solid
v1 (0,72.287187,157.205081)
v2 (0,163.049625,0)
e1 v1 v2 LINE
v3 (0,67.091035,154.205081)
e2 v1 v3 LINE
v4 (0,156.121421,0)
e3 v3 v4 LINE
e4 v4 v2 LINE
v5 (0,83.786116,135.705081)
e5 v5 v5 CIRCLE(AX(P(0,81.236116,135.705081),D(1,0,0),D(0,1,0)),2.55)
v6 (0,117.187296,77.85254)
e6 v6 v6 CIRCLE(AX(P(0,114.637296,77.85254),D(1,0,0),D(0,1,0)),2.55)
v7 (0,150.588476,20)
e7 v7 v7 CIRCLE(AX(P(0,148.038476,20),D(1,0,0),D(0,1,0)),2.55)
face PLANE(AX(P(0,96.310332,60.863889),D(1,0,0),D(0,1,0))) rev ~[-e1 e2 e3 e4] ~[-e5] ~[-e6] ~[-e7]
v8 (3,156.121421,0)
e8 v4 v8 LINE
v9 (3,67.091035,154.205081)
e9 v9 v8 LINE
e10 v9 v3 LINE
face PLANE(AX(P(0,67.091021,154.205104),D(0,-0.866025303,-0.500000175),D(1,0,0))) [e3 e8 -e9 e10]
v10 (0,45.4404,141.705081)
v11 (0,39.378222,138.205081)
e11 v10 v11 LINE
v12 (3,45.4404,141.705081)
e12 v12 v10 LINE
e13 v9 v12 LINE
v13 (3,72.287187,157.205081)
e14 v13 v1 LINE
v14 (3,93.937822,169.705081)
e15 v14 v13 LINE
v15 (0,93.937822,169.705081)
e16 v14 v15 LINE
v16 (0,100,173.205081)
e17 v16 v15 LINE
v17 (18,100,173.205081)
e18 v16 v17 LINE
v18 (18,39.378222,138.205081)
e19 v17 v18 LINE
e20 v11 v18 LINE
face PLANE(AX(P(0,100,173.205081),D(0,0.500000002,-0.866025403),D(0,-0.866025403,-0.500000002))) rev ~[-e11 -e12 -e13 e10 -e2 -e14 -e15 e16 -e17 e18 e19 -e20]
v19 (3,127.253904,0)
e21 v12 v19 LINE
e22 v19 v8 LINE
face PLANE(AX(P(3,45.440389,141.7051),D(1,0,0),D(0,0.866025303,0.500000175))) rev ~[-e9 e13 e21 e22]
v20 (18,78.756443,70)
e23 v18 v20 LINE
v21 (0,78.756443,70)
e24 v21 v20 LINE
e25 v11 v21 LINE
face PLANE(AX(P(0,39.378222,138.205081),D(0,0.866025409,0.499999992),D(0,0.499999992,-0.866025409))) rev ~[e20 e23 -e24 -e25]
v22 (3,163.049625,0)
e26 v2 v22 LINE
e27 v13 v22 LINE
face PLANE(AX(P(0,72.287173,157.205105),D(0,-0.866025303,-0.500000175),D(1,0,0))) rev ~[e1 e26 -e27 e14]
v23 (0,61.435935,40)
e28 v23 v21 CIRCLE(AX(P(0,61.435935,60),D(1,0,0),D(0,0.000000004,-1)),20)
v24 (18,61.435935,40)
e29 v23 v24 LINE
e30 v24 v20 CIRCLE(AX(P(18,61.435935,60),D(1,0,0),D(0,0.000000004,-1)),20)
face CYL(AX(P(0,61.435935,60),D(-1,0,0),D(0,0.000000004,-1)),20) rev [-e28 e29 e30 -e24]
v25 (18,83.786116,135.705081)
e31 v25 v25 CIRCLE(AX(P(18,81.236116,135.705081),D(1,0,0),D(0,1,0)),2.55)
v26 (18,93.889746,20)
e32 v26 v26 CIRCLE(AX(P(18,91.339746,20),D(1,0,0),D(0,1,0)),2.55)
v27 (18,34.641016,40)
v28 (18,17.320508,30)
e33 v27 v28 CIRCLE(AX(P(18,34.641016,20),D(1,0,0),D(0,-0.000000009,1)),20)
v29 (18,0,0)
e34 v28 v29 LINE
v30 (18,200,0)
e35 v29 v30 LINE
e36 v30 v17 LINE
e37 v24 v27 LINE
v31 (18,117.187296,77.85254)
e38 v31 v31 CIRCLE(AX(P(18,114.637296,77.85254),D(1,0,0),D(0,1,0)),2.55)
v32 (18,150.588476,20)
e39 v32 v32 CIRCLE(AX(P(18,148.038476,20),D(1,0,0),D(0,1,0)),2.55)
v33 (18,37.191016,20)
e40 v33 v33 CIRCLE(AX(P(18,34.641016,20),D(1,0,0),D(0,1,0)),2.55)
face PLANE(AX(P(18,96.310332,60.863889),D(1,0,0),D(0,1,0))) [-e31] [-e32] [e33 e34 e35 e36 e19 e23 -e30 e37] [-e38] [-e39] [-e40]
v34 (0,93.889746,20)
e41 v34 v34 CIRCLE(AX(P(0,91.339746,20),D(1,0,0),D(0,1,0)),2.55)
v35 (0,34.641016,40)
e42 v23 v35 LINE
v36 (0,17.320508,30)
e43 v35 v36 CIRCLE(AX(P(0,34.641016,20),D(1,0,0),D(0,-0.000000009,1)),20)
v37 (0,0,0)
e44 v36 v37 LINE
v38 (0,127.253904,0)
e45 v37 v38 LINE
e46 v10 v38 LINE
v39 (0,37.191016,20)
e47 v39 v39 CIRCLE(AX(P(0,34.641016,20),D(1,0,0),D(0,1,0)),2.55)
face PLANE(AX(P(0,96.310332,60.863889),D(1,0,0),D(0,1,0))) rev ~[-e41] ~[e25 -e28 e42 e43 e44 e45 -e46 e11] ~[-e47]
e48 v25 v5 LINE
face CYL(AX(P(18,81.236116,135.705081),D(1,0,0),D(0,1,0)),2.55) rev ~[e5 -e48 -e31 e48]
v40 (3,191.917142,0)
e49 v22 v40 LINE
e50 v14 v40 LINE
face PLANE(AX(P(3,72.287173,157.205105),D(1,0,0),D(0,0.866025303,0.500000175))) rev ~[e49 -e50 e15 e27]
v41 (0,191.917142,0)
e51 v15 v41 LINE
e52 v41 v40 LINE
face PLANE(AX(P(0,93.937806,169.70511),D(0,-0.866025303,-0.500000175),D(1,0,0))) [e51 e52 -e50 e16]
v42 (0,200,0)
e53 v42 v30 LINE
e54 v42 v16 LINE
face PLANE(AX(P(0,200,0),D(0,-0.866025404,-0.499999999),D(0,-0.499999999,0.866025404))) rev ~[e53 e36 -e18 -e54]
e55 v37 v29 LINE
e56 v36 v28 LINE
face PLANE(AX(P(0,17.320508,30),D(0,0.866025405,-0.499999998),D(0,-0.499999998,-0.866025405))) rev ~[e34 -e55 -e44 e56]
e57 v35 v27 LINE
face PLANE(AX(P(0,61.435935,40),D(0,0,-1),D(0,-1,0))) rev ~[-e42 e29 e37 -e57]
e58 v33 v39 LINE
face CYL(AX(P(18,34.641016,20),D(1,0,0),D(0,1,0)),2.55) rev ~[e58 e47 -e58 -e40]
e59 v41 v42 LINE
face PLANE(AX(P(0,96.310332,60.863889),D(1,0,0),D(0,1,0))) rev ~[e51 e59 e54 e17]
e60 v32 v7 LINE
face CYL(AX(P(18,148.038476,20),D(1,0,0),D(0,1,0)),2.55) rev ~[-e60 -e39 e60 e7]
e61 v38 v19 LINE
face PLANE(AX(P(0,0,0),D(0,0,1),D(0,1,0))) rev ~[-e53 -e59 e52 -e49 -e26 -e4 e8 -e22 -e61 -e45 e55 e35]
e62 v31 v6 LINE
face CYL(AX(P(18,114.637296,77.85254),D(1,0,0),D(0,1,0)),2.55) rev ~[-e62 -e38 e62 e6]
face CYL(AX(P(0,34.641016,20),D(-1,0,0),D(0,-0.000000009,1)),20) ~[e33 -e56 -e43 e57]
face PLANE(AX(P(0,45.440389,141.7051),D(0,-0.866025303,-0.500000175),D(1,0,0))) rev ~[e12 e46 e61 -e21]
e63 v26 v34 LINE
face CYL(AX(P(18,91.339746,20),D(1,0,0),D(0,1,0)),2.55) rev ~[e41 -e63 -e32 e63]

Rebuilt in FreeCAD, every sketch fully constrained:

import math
import FreeCAD as App
import Part
import Sketcher
Q = App.Units.Quantity


def add_polygon(sketch, points):
    """Adds a closed chain of lines whose ends are joined by coincident constraints."""
    first, n = sketch.GeometryCount, len(points)
    for a, b in zip(points, points[1:] + points[:1]):
        sketch.addGeometry(Part.LineSegment(App.Vector(*a, 0), App.Vector(*b, 0)), False)
    for i in range(n):
        sketch.addConstraint(Sketcher.Constraint("Coincident", first + i, 2, first + (i + 1) % n, 1))

doc = App.newDocument("Part")
body = doc.addObject("PartDesign::Body", "Body")

# Sketch on YZ plane
sketch1 = doc.addObject("Sketcher::SketchObject", "Sketch")
body.addObject(sketch1)
sketch1.AttachmentSupport = (doc.YZ_Plane, [""])
sketch1.MapMode = "FlatFace"
sketch1.addGeometry([
    Part.LineSegment(App.Vector(0, 0, 0), App.Vector(200, 0, 0)),  # 0
    Part.LineSegment(App.Vector(200, 0, 0), App.Vector(100, 173, 0)),  # 1
    Part.LineSegment(App.Vector(100, 173, 0), App.Vector(39, 138, 0)),  # 2
    Part.LineSegment(App.Vector(39, 138, 0), App.Vector(79, 70, 0)),  # 3
    Part.ArcOfCircle(Part.Circle(App.Vector(61, 60, 0), App.Vector(0, 0, 1), 20), math.radians(-90), math.radians(30)),  # 4
    Part.LineSegment(App.Vector(61, 40, 0), App.Vector(35, 40, 0)),  # 5
    Part.ArcOfCircle(Part.Circle(App.Vector(35, 20, 0), App.Vector(0, 0, 1), 20), math.radians(90), math.radians(150)),  # 6
    Part.LineSegment(App.Vector(17, 30, 0), App.Vector(0, 0, 0)),  # 7
], False)
sketch1.addConstraint([
    Sketcher.Constraint("Coincident", 0, 2, 1, 1),
    Sketcher.Constraint("Coincident", 1, 2, 2, 1),
    Sketcher.Constraint("Coincident", 2, 2, 3, 1),
    Sketcher.Constraint("Tangent", 3, 2, 4, 2),
    Sketcher.Constraint("Tangent", 4, 1, 5, 1),
    Sketcher.Constraint("Tangent", 5, 2, 6, 1),
    Sketcher.Constraint("Tangent", 6, 2, 7, 1),
    Sketcher.Constraint("Coincident", 7, 2, 0, 1),
    Sketcher.Constraint("Horizontal", 0),
    Sketcher.Constraint("Horizontal", 5),
    Sketcher.Constraint("Coincident", 7, 2, -1, 1),
    Sketcher.Constraint("Equal", 4, 6),
    Sketcher.Constraint("Perpendicular", 1, 2),
    Sketcher.Constraint("Perpendicular", 2, 3),
    Sketcher.Constraint("Radius", 4, Q("20 mm")),
    Sketcher.Constraint("DistanceX", 0, 1, 0, 2, Q("200 mm")),
    Sketcher.Constraint("Angle", 1, Q("120 deg")),
    Sketcher.Constraint("Angle", 7, Q("-120 deg")),
    Sketcher.Constraint("Distance", 1, Q("200 mm")),
    Sketcher.Constraint("Distance", 2, Q("70 mm")),
    Sketcher.Constraint("DistanceY", -1, 1, 4, 3, Q("60 mm")),
])
pad1 = doc.addObject("PartDesign::Pad", "Pad")
body.addObject(pad1)
pad1.Profile = sketch1
pad1.Length = 18

# Sketch on YZ plane
sketch2 = doc.addObject("Sketcher::SketchObject", "Sketch001")
body.addObject(sketch2)
sketch2.AttachmentSupport = (doc.YZ_Plane, [""])
sketch2.MapMode = "FlatFace"
sketch2.AttachmentOffset = App.Placement(App.Vector(0, 0, 18), App.Rotation())
sketch2.addGeometry([
    Part.Circle(App.Vector(81.2, 135.7, 0), App.Vector(0, 0, 1), 2.5),  # 0
    Part.Circle(App.Vector(114.6, 77.9, 0), App.Vector(0, 0, 1), 2.5),  # 1
    Part.Circle(App.Vector(148, 20, 0), App.Vector(0, 0, 1), 2.5),  # 2
    Part.Circle(App.Vector(91.3, 20, 0), App.Vector(0, 0, 1), 2.5),  # 3
    Part.Circle(App.Vector(34.6, 20, 0), App.Vector(0, 0, 1), 2.5),  # 4
], False)
sketch2.addConstraint([
    Sketcher.Constraint("Equal", 0, 1),
    Sketcher.Constraint("Equal", 1, 2),
    Sketcher.Constraint("Equal", 2, 3),
    Sketcher.Constraint("Equal", 3, 4),
    Sketcher.Constraint("Horizontal", 2, 3, 3, 3),
    Sketcher.Constraint("Horizontal", 3, 3, 4, 3),
    Sketcher.Constraint("Diameter", 0, Q("5.1 mm")),
    Sketcher.Constraint("DistanceY", -1, 1, 2, 3, Q("20 mm")),
    Sketcher.Constraint("DistanceX", 4, 3, 0, 3, Q("46.5951 mm")),
    Sketcher.Constraint("DistanceY", -1, 1, 0, 3, Q("135.705081 mm")),
    Sketcher.Constraint("DistanceY", -1, 1, 1, 3, Q("77.85254 mm")),
    Sketcher.Constraint("DistanceX", 0, 3, 1, 3, Q("33.40118 mm")),
    Sketcher.Constraint("DistanceX", 1, 3, 2, 3, Q("33.40118 mm")),
    Sketcher.Constraint("DistanceX", 3, 3, 2, 3, Q("56.69873 mm")),
    Sketcher.Constraint("DistanceX", -1, 1, 0, 3, Q("81.236116 mm")),
])
pocket1 = doc.addObject("PartDesign::Pocket", "Pocket")
body.addObject(pocket1)
pocket1.Profile = sketch2
pocket1.Type = "ThroughAll"

# Sketch on an angled plane
sketch3 = doc.addObject("Sketcher::SketchObject", "Sketch002")
body.addObject(sketch3)
sketch3.Placement = App.Placement(App.Vector(0, -50, 86.60254), App.Rotation(App.Vector(1, 0, 0), App.Vector(0, 0.866025303, 0.500000175), App.Vector(0, -0.500000175, 0.866025303), "ZXY"))
add_polygon(sketch3, [(0, 135.2), (0, 110.2), (3, 110.2), (3, 135.2)])  # lines 0-3
add_polygon(sketch3, [(0, 166.2), (0, 141.2), (3, 141.2), (3, 166.2)])  # lines 4-7
sketch3.addConstraint([
    Sketcher.Constraint("Vertical", 0),
    Sketcher.Constraint("Horizontal", 1),
    Sketcher.Constraint("Vertical", 2),
    Sketcher.Constraint("Horizontal", 3),
    Sketcher.Constraint("Vertical", 4),
    Sketcher.Constraint("Horizontal", 5),
    Sketcher.Constraint("Vertical", 6),
    Sketcher.Constraint("Horizontal", 7),
    Sketcher.Constraint("PointOnObject", 0, 2, -2),
    Sketcher.Constraint("PointOnObject", 4, 2, -2),
    Sketcher.Constraint("Vertical", 2, 2, 5, 2),
    Sketcher.Constraint("Equal", 2, 4),
    Sketcher.Constraint("DistanceX", 1, 1, 1, 2, Q("3 mm")),
    Sketcher.Constraint("DistanceY", 0, 2, 0, 1, Q("25 mm")),
    Sketcher.Constraint("DistanceY", 3, 2, 4, 2, Q("6 mm")),
    Sketcher.Constraint("DistanceY", -1, 1, 0, 2, Q("110.205081 mm")),
])
pocket2 = doc.addObject("PartDesign::Pocket", "Pocket001")
body.addObject(pocket2)
pocket2.Profile = sketch3
pocket2.Type = "ThroughAll"

doc.recompute()
